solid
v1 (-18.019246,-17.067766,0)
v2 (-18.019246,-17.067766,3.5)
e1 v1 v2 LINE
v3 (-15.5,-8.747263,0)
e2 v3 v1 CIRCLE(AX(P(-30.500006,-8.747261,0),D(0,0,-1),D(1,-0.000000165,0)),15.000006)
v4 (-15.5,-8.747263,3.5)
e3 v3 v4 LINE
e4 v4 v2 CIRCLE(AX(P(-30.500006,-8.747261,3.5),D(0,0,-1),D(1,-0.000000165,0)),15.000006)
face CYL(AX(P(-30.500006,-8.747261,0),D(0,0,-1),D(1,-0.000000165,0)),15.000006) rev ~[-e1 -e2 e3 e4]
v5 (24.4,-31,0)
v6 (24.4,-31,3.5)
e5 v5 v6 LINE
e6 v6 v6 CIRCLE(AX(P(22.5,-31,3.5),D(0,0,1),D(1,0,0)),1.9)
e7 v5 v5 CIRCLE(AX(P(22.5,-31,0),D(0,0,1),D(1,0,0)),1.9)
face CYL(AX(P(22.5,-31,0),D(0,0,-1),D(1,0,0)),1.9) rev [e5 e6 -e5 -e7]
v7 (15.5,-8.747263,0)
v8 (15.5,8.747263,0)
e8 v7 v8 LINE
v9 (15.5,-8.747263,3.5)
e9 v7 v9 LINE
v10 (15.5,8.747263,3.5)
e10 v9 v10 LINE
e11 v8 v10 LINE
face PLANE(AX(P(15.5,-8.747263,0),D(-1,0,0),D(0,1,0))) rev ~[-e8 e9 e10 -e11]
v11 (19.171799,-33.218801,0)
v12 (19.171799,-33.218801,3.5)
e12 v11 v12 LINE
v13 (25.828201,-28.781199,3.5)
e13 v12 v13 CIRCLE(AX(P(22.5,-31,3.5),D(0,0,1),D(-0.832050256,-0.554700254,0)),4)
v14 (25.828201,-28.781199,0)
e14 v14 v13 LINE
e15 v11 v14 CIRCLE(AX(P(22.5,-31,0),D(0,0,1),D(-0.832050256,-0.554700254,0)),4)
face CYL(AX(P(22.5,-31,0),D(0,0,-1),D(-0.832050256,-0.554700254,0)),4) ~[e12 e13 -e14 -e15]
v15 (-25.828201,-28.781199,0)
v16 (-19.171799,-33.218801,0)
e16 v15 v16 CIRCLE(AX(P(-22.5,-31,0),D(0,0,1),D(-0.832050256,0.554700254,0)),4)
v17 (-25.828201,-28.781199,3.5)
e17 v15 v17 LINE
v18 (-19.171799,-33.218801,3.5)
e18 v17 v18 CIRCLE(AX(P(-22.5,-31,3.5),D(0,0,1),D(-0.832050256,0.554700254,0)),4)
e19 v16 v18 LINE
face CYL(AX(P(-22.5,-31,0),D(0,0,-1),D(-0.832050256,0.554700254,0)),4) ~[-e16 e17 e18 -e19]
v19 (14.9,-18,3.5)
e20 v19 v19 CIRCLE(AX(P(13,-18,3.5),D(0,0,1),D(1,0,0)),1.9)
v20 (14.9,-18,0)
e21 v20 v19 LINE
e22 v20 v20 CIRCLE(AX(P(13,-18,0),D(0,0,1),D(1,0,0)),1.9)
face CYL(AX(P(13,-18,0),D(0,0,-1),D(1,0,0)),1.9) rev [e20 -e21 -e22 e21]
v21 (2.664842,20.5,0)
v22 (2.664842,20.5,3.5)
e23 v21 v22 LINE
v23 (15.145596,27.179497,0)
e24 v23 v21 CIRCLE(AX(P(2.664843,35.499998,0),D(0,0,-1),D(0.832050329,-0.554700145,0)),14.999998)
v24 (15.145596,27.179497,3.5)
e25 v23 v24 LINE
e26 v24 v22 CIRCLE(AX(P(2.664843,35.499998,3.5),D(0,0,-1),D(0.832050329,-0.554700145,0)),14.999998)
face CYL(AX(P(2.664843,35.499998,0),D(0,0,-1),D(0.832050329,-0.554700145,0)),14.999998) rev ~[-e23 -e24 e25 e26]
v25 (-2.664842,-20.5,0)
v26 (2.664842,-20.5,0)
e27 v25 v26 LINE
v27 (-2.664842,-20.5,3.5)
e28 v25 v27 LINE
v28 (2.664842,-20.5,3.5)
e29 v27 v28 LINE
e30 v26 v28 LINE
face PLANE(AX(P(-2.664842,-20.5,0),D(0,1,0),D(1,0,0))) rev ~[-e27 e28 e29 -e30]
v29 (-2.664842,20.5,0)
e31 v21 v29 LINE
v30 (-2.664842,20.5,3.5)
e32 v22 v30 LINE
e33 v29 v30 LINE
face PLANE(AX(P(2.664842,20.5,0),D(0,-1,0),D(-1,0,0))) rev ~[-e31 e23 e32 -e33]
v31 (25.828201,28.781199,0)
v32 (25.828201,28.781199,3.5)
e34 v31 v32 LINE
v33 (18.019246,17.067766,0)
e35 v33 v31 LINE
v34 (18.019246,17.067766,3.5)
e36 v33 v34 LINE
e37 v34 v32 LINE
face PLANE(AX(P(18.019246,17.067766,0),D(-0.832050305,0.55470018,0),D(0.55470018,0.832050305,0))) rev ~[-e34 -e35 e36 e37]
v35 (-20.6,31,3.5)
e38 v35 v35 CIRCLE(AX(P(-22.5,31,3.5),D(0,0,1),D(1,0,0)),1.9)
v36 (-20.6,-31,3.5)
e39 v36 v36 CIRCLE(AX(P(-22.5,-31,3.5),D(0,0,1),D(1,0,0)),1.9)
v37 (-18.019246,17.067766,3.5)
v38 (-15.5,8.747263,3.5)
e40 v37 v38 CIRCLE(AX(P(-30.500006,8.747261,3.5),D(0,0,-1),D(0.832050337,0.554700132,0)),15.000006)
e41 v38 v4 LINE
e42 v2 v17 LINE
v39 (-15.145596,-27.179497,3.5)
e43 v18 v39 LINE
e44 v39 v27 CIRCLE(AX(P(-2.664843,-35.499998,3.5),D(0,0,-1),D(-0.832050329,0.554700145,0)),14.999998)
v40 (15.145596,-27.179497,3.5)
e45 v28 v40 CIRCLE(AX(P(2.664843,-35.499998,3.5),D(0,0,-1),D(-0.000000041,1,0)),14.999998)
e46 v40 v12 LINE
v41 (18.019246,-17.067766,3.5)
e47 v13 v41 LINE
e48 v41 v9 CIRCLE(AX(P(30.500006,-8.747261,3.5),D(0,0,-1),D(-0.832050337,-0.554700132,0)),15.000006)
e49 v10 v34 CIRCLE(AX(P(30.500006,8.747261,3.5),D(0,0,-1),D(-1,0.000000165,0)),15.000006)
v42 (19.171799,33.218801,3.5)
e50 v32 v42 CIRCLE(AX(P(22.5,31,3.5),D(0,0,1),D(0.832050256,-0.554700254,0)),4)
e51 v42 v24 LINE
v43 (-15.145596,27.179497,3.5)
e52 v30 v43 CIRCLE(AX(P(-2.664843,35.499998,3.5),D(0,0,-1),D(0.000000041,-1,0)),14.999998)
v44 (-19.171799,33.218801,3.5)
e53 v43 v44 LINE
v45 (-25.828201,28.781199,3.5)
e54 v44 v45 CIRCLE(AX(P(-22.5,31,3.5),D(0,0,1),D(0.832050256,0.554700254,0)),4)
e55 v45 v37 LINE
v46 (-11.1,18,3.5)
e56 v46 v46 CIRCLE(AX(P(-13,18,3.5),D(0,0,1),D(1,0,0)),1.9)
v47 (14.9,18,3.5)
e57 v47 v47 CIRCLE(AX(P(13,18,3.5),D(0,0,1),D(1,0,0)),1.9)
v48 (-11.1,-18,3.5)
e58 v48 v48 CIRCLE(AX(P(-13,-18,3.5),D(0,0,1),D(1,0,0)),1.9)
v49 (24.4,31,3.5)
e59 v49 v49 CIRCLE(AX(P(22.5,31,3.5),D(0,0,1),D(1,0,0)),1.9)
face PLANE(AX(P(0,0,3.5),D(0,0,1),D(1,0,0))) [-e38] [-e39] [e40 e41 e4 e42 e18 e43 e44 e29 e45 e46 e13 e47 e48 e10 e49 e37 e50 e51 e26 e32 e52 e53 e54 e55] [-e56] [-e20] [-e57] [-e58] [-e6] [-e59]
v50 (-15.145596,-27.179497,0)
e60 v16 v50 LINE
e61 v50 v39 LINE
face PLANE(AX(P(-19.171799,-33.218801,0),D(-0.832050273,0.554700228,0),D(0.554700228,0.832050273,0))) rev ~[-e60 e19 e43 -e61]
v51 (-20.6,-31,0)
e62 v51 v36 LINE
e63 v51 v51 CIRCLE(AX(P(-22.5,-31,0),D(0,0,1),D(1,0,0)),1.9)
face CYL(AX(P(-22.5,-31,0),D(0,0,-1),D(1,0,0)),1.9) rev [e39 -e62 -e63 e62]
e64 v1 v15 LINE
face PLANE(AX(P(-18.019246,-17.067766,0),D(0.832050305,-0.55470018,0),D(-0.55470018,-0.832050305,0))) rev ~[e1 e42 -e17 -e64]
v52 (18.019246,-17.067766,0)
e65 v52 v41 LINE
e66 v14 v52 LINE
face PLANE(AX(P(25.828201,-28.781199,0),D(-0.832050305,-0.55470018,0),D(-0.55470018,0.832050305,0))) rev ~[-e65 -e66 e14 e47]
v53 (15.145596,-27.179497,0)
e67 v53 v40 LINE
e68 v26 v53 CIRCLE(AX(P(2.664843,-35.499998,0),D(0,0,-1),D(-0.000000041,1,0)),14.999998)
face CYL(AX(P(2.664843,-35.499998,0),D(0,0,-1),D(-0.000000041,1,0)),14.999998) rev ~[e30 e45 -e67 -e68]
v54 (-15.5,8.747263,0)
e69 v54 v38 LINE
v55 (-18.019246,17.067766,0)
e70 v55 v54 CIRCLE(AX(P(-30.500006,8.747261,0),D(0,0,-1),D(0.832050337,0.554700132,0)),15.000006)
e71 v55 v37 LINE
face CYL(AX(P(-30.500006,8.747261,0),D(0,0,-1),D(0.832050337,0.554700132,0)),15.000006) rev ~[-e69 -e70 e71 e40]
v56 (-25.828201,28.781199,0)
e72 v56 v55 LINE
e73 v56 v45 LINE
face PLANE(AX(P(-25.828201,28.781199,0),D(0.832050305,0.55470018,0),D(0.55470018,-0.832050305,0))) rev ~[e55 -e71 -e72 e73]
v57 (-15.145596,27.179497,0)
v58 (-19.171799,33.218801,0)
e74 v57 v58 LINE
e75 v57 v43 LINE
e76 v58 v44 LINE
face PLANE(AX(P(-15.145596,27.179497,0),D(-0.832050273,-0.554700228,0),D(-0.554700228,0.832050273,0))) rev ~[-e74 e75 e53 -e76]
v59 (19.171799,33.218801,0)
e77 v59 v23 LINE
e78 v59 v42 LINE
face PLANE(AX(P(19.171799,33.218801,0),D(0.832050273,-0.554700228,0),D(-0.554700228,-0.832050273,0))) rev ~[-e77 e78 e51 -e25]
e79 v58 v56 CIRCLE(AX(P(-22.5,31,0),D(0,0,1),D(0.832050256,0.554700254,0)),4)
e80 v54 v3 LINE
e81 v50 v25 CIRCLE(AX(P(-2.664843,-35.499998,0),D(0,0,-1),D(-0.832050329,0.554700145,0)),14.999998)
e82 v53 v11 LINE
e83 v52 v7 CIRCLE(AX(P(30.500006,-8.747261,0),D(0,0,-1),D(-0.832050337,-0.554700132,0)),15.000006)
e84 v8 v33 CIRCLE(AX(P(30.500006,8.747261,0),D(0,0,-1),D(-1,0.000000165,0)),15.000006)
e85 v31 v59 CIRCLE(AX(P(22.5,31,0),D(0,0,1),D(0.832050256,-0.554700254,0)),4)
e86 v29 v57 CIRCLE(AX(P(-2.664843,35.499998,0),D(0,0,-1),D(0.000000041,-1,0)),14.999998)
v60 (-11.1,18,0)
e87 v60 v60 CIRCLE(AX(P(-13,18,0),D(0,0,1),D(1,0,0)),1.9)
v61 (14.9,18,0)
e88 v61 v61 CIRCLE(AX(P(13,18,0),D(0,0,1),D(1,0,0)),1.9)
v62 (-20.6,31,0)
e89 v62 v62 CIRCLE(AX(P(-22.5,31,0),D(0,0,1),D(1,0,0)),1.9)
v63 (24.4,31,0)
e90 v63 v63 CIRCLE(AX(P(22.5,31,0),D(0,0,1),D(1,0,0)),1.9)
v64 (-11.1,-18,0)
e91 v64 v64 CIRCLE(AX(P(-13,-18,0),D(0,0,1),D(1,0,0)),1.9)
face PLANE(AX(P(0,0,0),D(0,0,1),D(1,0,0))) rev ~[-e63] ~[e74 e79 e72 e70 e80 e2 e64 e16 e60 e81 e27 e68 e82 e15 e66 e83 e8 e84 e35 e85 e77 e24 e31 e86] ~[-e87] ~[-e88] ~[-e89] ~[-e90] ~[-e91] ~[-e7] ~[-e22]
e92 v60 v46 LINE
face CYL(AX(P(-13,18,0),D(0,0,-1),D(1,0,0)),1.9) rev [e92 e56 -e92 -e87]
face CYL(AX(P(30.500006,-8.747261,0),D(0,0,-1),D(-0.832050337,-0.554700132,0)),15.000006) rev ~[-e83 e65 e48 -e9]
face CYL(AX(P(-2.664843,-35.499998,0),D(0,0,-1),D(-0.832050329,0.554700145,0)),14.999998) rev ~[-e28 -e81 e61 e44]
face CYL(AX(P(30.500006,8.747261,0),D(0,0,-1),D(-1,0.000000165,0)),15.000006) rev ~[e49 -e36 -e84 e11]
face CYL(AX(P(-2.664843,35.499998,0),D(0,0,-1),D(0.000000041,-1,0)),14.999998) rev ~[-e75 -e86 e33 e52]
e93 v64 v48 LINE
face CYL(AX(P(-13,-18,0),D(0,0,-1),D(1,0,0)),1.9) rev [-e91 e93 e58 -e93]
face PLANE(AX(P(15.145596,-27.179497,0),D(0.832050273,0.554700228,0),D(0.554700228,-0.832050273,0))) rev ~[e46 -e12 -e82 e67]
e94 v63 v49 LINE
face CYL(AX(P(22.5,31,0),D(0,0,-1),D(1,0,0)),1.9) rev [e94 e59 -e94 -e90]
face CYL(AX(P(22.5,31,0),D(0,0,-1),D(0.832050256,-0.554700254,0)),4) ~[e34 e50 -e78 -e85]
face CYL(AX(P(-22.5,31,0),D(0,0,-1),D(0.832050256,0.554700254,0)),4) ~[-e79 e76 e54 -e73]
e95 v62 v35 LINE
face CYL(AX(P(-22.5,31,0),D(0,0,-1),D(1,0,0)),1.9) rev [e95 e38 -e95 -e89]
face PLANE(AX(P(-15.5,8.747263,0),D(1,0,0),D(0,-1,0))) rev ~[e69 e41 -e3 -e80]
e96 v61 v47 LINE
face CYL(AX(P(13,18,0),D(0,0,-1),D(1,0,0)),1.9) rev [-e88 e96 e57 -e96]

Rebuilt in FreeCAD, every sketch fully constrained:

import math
import FreeCAD as App
import Part
import Sketcher

doc = App.newDocument("Part")
body = doc.addObject("PartDesign::Body", "Body")

# Sketch on XY plane
sketch1 = doc.addObject("Sketcher::SketchObject", "Sketch")
body.addObject(sketch1)
sketch1.AttachmentSupport = (doc.XY_Plane, [""])
sketch1.MapMode = "FlatFace"
sketch1.addGeometry([
    Part.LineSegment(App.Vector(-15.145596, 27.179497, 0), App.Vector(-19.171799, 33.218801, 0)),  # 0
    Part.ArcOfCircle(Part.Circle(App.Vector(-22.5, 31, 0), App.Vector(0, 0, 1), 4), math.radians(33.690071), math.radians(213.690071)),  # 1
    Part.LineSegment(App.Vector(-25.828201, 28.781199, 0), App.Vector(-18.019246, 17.067766, 0)),  # 2
    Part.ArcOfCircle(Part.Circle(App.Vector(-30.500006, 8.747261, 0), App.Vector(0, 0, 1), 15.000006), math.radians(0.000009), math.radians(33.690063)),  # 3
    Part.LineSegment(App.Vector(-15.5, 8.747263, 0), App.Vector(-15.5, -8.747263, 0)),  # 4
    Part.ArcOfCircle(Part.Circle(App.Vector(-30.500006, -8.747261, 0), App.Vector(0, 0, 1), 15.000006), math.radians(-33.690063), math.radians(-0.000009)),  # 5
    Part.LineSegment(App.Vector(-18.019246, -17.067766, 0), App.Vector(-25.828201, -28.781199, 0)),  # 6
    Part.ArcOfCircle(Part.Circle(App.Vector(-22.5, -31, 0), App.Vector(0, 0, 1), 4), math.radians(146.309929), math.radians(326.309929)),  # 7
    Part.LineSegment(App.Vector(-19.171799, -33.218801, 0), App.Vector(-15.145596, -27.179497, 0)),  # 8
    Part.ArcOfCircle(Part.Circle(App.Vector(-2.664843, -35.499998, 0), App.Vector(0, 0, 1), 14.999998), math.radians(89.999998), math.radians(146.309936)),  # 9
    Part.LineSegment(App.Vector(-2.664842, -20.5, 0), App.Vector(2.664842, -20.5, 0)),  # 10
    Part.ArcOfCircle(Part.Circle(App.Vector(2.664843, -35.499998, 0), App.Vector(0, 0, 1), 14.999998), math.radians(33.690064), math.radians(90.000002)),  # 11
    Part.LineSegment(App.Vector(15.145596, -27.179497, 0), App.Vector(19.171799, -33.218801, 0)),  # 12
    Part.ArcOfCircle(Part.Circle(App.Vector(22.5, -31, 0), App.Vector(0, 0, 1), 4), math.radians(-146.309929), math.radians(33.690071)),  # 13
    Part.LineSegment(App.Vector(25.828201, -28.781199, 0), App.Vector(18.019246, -17.067766, 0)),  # 14
    Part.ArcOfCircle(Part.Circle(App.Vector(30.500006, -8.747261, 0), App.Vector(0, 0, 1), 15.000006), math.radians(-179.999991), math.radians(-146.309937)),  # 15
    Part.LineSegment(App.Vector(15.5, -8.747263, 0), App.Vector(15.5, 8.747263, 0)),  # 16
    Part.ArcOfCircle(Part.Circle(App.Vector(30.500006, 8.747261, 0), App.Vector(0, 0, 1), 15.000006), math.radians(146.309937), math.radians(179.999991)),  # 17
    Part.LineSegment(App.Vector(18.019246, 17.067766, 0), App.Vector(25.828201, 28.781199, 0)),  # 18
    Part.ArcOfCircle(Part.Circle(App.Vector(22.5, 31, 0), App.Vector(0, 0, 1), 4), math.radians(-33.690071), math.radians(146.309929)),  # 19
    Part.LineSegment(App.Vector(19.171799, 33.218801, 0), App.Vector(15.145596, 27.179497, 0)),  # 20
    Part.ArcOfCircle(Part.Circle(App.Vector(2.664843, 35.499998, 0), App.Vector(0, 0, 1), 14.999998), math.radians(-90.000002), math.radians(-33.690064)),  # 21
    Part.LineSegment(App.Vector(2.664842, 20.5, 0), App.Vector(-2.664842, 20.5, 0)),  # 22
    Part.ArcOfCircle(Part.Circle(App.Vector(-2.664843, 35.499998, 0), App.Vector(0, 0, 1), 14.999998), math.radians(-146.309936), math.radians(-89.999998)),  # 23
    Part.Circle(App.Vector(-22.5, -31, 0), App.Vector(0, 0, 1), 1.9),  # 24
    Part.Circle(App.Vector(-13, -18, 0), App.Vector(0, 0, 1), 1.9),  # 25
    Part.Circle(App.Vector(22.5, -31, 0), App.Vector(0, 0, 1), 1.9),  # 26
    Part.Circle(App.Vector(13, -18, 0), App.Vector(0, 0, 1), 1.9),  # 27
    Part.Circle(App.Vector(-13, 18, 0), App.Vector(0, 0, 1), 1.9),  # 28
    Part.Circle(App.Vector(-22.5, 31, 0), App.Vector(0, 0, 1), 1.9),  # 29
    Part.Circle(App.Vector(13, 18, 0), App.Vector(0, 0, 1), 1.9),  # 30
    Part.Circle(App.Vector(22.5, 31, 0), App.Vector(0, 0, 1), 1.9),  # 31
], False)
sketch1.addConstraint([
    Sketcher.Constraint("Tangent", 0, 2, 1, 1),
    Sketcher.Constraint("Tangent", 1, 2, 2, 1),
    Sketcher.Constraint("Tangent", 2, 2, 3, 2),
    Sketcher.Constraint("Tangent", 3, 1, 4, 1),
    Sketcher.Constraint("Tangent", 4, 2, 5, 2),
    Sketcher.Constraint("Tangent", 5, 1, 6, 1),
    Sketcher.Constraint("Tangent", 6, 2, 7, 1),
    Sketcher.Constraint("Tangent", 7, 2, 8, 1),
    Sketcher.Constraint("Tangent", 8, 2, 9, 2),
    Sketcher.Constraint("Tangent", 9, 1, 10, 1),
    Sketcher.Constraint("Tangent", 10, 2, 11, 2),
    Sketcher.Constraint("Tangent", 11, 1, 12, 1),
    Sketcher.Constraint("Tangent", 12, 2, 13, 1),
    Sketcher.Constraint("Tangent", 13, 2, 14, 1),
    Sketcher.Constraint("Tangent", 14, 2, 15, 2),
    Sketcher.Constraint("Tangent", 15, 1, 16, 1),
    Sketcher.Constraint("Tangent", 16, 2, 17, 2),
    Sketcher.Constraint("Tangent", 17, 1, 18, 1),
    Sketcher.Constraint("Tangent", 18, 2, 19, 1),
    Sketcher.Constraint("Tangent", 19, 2, 20, 1),
    Sketcher.Constraint("Tangent", 20, 2, 21, 2),
    Sketcher.Constraint("Tangent", 21, 1, 22, 1),
    Sketcher.Constraint("Tangent", 22, 2, 23, 2),
    Sketcher.Constraint("Tangent", 23, 1, 0, 1),
    Sketcher.Constraint("Vertical", 4),
    Sketcher.Constraint("Horizontal", 10),
    Sketcher.Constraint("Vertical", 16),
    Sketcher.Constraint("Horizontal", 22),
    Sketcher.Constraint("Coincident", 24, 3, 7, 3),
    Sketcher.Constraint("Coincident", 26, 3, 13, 3),
    Sketcher.Constraint("Coincident", 29, 3, 1, 3),
    Sketcher.Constraint("Coincident", 31, 3, 19, 3),
    Sketcher.Constraint("Equal", 3, 5),
    Sketcher.Constraint("Equal", 1, 7),
    Sketcher.Constraint("Equal", 9, 11),
    Sketcher.Constraint("Equal", 7, 13),
    Sketcher.Constraint("Equal", 5, 15),
    Sketcher.Constraint("Equal", 15, 17),
    Sketcher.Constraint("Equal", 13, 19),
    Sketcher.Constraint("Equal", 11, 21),
    Sketcher.Constraint("Equal", 21, 23),
    Sketcher.Constraint("Equal", 24, 25),
    Sketcher.Constraint("Equal", 25, 26),
    Sketcher.Constraint("Equal", 26, 27),
    Sketcher.Constraint("Equal", 27, 28),
    Sketcher.Constraint("Equal", 28, 29),
    Sketcher.Constraint("Equal", 29, 30),
    Sketcher.Constraint("Equal", 30, 31),
    Sketcher.Constraint("Symmetric", 1, 3, 13, 3, -1, 1),
    Sketcher.Constraint("Symmetric", 3, 3, 15, 3, -1, 1),
    Sketcher.Constraint("Symmetric", 7, 3, 19, 3, -1, 1),
    Sketcher.Constraint("Symmetric", 9, 3, 21, 3, -1, 1),
    Sketcher.Constraint("Symmetric", 27, 3, 28, 3, -1, 1),
    Sketcher.Constraint("Symmetric", 25, 3, 30, 3, -1, 1),
    Sketcher.Constraint("Symmetric", 7, 3, 13, 3, -2),
    Sketcher.Constraint("Symmetric", 25, 3, 27, 3, -2),
    Sketcher.Constraint("Parallel", 0, 2),
    Sketcher.Constraint("Parallel", 6, 8),
    Sketcher.Constraint("Parallel", 2, 12),
    Sketcher.Constraint("Parallel", 8, 18),
    Sketcher.Constraint("Horizontal", 5, 3, 15, 3),
    Sketcher.Constraint("Radius", 1, 4.0),
    Sketcher.Constraint("Radius", 9, 14.999998),
    Sketcher.Constraint("Diameter", 24, 3.8),
    Sketcher.Constraint("DistanceY", -1, 1, 1, 3, 31.0),
    Sketcher.Constraint("DistanceX", 25, 3, -1, 1, 13.0),
    Sketcher.Constraint("DistanceY", 25, 3, -1, 1, 18.0),
    Sketcher.Constraint("DistanceX", 7, 3, 13, 3, 45.0),
    Sketcher.Constraint("DistanceX", 7, 3, 4, 2, 7.0),
    Sketcher.Constraint("DistanceY", 9, 3, -1, 1, 35.499998),
    Sketcher.Constraint("Radius", 3, 15.000006),
    Sketcher.Constraint("DistanceX", 0, 2, -1, 1, 19.171799),
])
pad1 = doc.addObject("PartDesign::Pad", "Pad")
body.addObject(pad1)
pad1.Profile = sketch1
pad1.Length = 3.5

doc.recompute()
